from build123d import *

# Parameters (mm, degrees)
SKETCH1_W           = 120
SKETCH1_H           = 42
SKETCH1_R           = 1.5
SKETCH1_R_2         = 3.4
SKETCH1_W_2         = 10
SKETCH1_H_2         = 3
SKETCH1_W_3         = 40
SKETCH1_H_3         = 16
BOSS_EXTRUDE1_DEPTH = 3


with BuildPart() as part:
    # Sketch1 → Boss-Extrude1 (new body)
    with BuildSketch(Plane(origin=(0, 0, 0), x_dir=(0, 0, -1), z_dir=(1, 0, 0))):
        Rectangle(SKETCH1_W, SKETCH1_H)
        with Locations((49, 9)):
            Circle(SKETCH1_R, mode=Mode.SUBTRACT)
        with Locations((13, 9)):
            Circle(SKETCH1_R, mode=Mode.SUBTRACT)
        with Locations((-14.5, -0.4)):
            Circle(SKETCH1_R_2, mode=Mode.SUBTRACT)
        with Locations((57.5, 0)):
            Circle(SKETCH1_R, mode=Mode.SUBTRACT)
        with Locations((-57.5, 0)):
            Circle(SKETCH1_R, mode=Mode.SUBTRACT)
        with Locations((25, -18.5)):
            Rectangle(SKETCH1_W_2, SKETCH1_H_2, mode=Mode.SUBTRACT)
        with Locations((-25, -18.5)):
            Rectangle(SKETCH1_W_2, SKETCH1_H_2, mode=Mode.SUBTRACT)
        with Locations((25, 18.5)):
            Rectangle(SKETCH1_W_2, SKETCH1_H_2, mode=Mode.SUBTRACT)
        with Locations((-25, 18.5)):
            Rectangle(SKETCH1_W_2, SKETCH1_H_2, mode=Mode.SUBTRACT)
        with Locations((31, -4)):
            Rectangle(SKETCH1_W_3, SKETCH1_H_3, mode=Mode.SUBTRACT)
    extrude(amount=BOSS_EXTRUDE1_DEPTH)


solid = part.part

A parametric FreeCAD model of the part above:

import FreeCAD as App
import Part
import Sketcher
Q = App.Units.Quantity


def add_polygon(sketch, points):
    """Adds a closed chain of lines whose ends are joined by coincident constraints."""
    first, n = sketch.GeometryCount, len(points)
    for a, b in zip(points, points[1:] + points[:1]):
        sketch.addGeometry(Part.LineSegment(App.Vector(*a, 0), App.Vector(*b, 0)), False)
    for i in range(n):
        sketch.addConstraint(Sketcher.Constraint("Coincident", first + i, 2, first + (i + 1) % n, 1))

doc = App.newDocument("Part")
body = doc.addObject("PartDesign::Body", "Body")

# Sketch on YZ plane
sketch1 = body.newObject("Sketcher::SketchObject", "Sketch")
sketch1.AttachmentSupport = (doc.getObject("YZ_Plane"), [""])
sketch1.MapMode = "FlatFace"
add_polygon(sketch1, [(21, 60), (-21, 60), (-21, -60), (21, -60)])  # lines 0-3
add_polygon(sketch1, [(-20, 20), (-20, 30), (-17, 30), (-17, 20)])  # lines 4-7
sketch1.addGeometry(Part.Circle(App.Vector(-0.4, 14.5, 0), App.Vector(0, 0, 1), 3.4), False)  # 8
add_polygon(sketch1, [(-20, -30), (-20, -20), (-17, -20), (-17, -30)])  # lines 9-12
add_polygon(sketch1, [(-12, -51), (-12, -11), (4, -11), (4, -51)])  # lines 13-16
sketch1.addGeometry(Part.Circle(App.Vector(0, 57.5, 0), App.Vector(0, 0, 1), 1.5), False)  # 17
add_polygon(sketch1, [(17, 20), (17, 30), (20, 30), (20, 20)])  # lines 18-21
sketch1.addGeometry(Part.Circle(App.Vector(9, -13, 0), App.Vector(0, 0, 1), 1.5), False)  # 22
sketch1.addGeometry(Part.Circle(App.Vector(0, -57.5, 0), App.Vector(0, 0, 1), 1.5), False)  # 23
sketch1.addGeometry(Part.Circle(App.Vector(9, -49, 0), App.Vector(0, 0, 1), 1.5), False)  # 24
add_polygon(sketch1, [(17, -30), (17, -20), (20, -20), (20, -30)])  # lines 25-28
sketch1.addConstraint([
    Sketcher.Constraint("Horizontal", 0),
    Sketcher.Constraint("Vertical", 1),
    Sketcher.Constraint("Horizontal", 2),
    Sketcher.Constraint("Vertical", 3),
    Sketcher.Constraint("Vertical", 4),
    Sketcher.Constraint("Horizontal", 5),
    Sketcher.Constraint("Vertical", 6),
    Sketcher.Constraint("Horizontal", 7),
    Sketcher.Constraint("Vertical", 9),
    Sketcher.Constraint("Horizontal", 10),
    Sketcher.Constraint("Vertical", 11),
    Sketcher.Constraint("Horizontal", 12),
    Sketcher.Constraint("Vertical", 13),
    Sketcher.Constraint("Horizontal", 14),
    Sketcher.Constraint("Vertical", 15),
    Sketcher.Constraint("Horizontal", 16),
    Sketcher.Constraint("Vertical", 18),
    Sketcher.Constraint("Horizontal", 19),
    Sketcher.Constraint("Vertical", 20),
    Sketcher.Constraint("Horizontal", 21),
    Sketcher.Constraint("Vertical", 25),
    Sketcher.Constraint("Horizontal", 26),
    Sketcher.Constraint("Vertical", 27),
    Sketcher.Constraint("Horizontal", 28),
    Sketcher.Constraint("Equal", 17, 22),
    Sketcher.Constraint("Equal", 22, 23),
    Sketcher.Constraint("Equal", 23, 24),
    Sketcher.Constraint("Symmetric", 17, 3, 23, 3, -1, 1),
    Sketcher.Constraint("Symmetric", 0, 2, 2, 2, -1, 1),
    Sketcher.Constraint("Symmetric", 11, 2, 18, 2, -1, 1),
    Sketcher.Constraint("Symmetric", 9, 2, 20, 2, -1, 1),
    Sketcher.Constraint("Symmetric", 6, 2, 25, 2, -1, 1),
    Sketcher.Constraint("Symmetric", 4, 2, 27, 2, -1, 1),
    Sketcher.Constraint("Symmetric", 5, 2, 18, 2, -2),
    Sketcher.Constraint("Symmetric", 7, 2, 20, 2, -2),
    Sketcher.Constraint("PointOnObject", 17, 3, -2),
    Sketcher.Constraint("Vertical", 22, 3, 24, 3),
    Sketcher.Constraint("Diameter", 17, Q("3 mm")),
    Sketcher.Constraint("Diameter", 8, Q("6.8 mm")),
    Sketcher.Constraint("DistanceX", 0, 2, 0, 1, Q("42 mm")),
    Sketcher.Constraint("DistanceX", 5, 1, 5, 2, Q("3 mm")),
    Sketcher.Constraint("DistanceX", 14, 1, 14, 2, Q("16 mm")),
    Sketcher.Constraint("DistanceY", 1, 2, 1, 1, Q("120 mm")),
    Sketcher.Constraint("DistanceY", 4, 1, 4, 2, Q("10 mm")),
    Sketcher.Constraint("DistanceY", 13, 1, 13, 2, Q("40 mm")),
    Sketcher.Constraint("DistanceX", -1, 1, 22, 3, Q("9 mm")),
    Sketcher.Constraint("DistanceY", 22, 3, -1, 1, Q("13 mm")),
    Sketcher.Constraint("DistanceY", 24, 3, -1, 1, Q("49 mm")),
    Sketcher.Constraint("DistanceX", 4, 2, -1, 1, Q("20 mm")),
    Sketcher.Constraint("DistanceY", -1, 1, 4, 2, Q("30 mm")),
    Sketcher.Constraint("DistanceX", 13, 2, -1, 1, Q("12 mm")),
    Sketcher.Constraint("DistanceY", 13, 2, -1, 1, Q("11 mm")),
    Sketcher.Constraint("DistanceY", 8, 3, 17, 3, Q("43 mm")),
    Sketcher.Constraint("DistanceY", 23, 3, 8, 3, Q("72 mm")),
    Sketcher.Constraint("DistanceX", 8, 3, -1, 1, Q("0.4 mm")),
])
pad1 = body.newObject("PartDesign::Pad", "Pad")
pad1.Profile = sketch1
pad1.Length = 3

doc.recompute()
